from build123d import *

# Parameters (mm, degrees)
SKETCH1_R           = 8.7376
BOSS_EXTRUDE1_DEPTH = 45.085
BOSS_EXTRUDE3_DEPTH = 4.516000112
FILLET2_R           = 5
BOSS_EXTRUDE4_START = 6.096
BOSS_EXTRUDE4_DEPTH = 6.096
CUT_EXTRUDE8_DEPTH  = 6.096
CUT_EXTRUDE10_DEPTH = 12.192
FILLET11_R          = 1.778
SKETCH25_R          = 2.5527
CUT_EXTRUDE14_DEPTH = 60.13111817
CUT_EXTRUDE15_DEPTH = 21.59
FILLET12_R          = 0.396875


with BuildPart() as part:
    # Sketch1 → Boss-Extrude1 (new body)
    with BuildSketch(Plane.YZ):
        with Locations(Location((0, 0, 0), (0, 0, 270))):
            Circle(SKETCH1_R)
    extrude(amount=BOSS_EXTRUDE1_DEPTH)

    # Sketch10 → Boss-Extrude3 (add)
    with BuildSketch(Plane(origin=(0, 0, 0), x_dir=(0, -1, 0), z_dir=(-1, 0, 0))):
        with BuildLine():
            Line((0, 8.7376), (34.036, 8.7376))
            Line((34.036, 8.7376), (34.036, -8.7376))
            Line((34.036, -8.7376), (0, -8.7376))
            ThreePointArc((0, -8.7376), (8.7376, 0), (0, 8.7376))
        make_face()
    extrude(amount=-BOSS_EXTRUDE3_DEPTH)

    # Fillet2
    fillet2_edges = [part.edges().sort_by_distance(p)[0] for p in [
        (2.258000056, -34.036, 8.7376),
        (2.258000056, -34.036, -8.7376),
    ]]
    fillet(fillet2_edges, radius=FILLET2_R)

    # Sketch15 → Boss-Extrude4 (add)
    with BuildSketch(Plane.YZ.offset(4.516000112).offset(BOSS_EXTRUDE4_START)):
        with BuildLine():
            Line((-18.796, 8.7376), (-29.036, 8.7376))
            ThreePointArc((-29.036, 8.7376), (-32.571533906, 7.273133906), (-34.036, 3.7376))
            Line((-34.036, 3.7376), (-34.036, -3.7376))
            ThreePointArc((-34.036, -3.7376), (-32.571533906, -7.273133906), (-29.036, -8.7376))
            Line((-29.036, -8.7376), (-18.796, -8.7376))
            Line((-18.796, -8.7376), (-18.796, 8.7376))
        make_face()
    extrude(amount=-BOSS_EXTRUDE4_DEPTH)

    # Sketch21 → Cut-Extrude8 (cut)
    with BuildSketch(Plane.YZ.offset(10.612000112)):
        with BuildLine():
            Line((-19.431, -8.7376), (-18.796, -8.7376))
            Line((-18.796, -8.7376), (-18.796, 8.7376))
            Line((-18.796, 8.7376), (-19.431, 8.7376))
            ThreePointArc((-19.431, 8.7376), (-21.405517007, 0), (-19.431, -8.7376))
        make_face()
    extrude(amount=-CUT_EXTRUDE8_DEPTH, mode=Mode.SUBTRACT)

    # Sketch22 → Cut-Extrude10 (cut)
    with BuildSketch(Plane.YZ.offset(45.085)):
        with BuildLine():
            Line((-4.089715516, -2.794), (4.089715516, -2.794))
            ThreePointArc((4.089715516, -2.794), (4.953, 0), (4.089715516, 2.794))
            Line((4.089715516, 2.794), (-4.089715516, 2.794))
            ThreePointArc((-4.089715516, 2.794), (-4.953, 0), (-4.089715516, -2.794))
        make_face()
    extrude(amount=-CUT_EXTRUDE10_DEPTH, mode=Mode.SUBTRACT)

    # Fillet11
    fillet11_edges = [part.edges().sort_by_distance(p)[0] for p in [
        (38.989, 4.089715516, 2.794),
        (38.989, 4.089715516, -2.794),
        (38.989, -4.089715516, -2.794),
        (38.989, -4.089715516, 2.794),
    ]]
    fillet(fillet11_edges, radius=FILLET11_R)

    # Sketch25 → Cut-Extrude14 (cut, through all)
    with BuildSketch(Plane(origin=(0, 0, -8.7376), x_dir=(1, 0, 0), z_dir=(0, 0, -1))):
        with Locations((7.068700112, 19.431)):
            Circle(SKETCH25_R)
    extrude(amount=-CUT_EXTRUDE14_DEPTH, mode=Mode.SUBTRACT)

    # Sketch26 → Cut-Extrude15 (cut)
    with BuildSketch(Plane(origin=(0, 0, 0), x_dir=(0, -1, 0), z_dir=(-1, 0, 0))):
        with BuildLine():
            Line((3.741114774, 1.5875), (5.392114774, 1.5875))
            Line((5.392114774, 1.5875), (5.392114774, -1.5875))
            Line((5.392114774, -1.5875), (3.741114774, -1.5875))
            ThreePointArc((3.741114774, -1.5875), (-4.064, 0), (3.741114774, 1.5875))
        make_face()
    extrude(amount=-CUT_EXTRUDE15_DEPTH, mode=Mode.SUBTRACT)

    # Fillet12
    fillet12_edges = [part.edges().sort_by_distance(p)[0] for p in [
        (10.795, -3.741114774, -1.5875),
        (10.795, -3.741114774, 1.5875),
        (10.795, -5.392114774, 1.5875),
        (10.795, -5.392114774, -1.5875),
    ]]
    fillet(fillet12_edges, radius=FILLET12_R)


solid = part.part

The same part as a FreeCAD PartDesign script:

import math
import FreeCAD as App
import Part
import Sketcher
Q = App.Units.Quantity


def edges_at(feature, points):
    """Names of the edges that pass closest to the given points."""
    edges = feature.Shape.Edges
    near = lambda p: min(range(len(edges)), key=lambda i: edges[i].distToShape(Part.Vertex(*p))[0])
    return sorted({f"Edge{near(p) + 1}" for p in points})

doc = App.newDocument("Part")
body = doc.addObject("PartDesign::Body", "Body")

# Sketch on YZ plane
sketch1 = doc.addObject("Sketcher::SketchObject", "Sketch")
body.addObject(sketch1)
sketch1.AttachmentSupport = (doc.YZ_Plane, [""])
sketch1.MapMode = "FlatFace"
sketch1.addGeometry(Part.Circle(App.Vector(0, 0, 0), App.Vector(0, 0, 1), 9), False)
sketch1.addConstraint(Sketcher.Constraint("Coincident", 0, 3, -1, 1))
sketch1.addConstraint(Sketcher.Constraint("Diameter", 0, Q("0.688 in")))
pad1 = doc.addObject("PartDesign::Pad", "Pad")
body.addObject(pad1)
pad1.Profile = sketch1
pad1.Length = Q("1.775 in")

# Sketch on YZ plane
sketch2 = doc.addObject("Sketcher::SketchObject", "Sketch001")
body.addObject(sketch2)
sketch2.AttachmentSupport = (doc.YZ_Plane, [""])
sketch2.MapMode = "FlatFace"
sketch2.addGeometry(Part.LineSegment(App.Vector(-34, 9, 0), App.Vector(0, 9, 0)), False)
sketch2.addGeometry(Part.ArcOfCircle(Part.Circle(App.Vector(0, 0, 0), App.Vector(0, 0, 1), 9), math.radians(90), math.radians(270)), False)
sketch2.addGeometry(Part.LineSegment(App.Vector(0, -9, 0), App.Vector(-34, -9, 0)), False)
sketch2.addGeometry(Part.LineSegment(App.Vector(-34, -9, 0), App.Vector(-34, 9, 0)), False)
sketch2.addConstraint(Sketcher.Constraint("Tangent", 0, 2, 1, 1))
sketch2.addConstraint(Sketcher.Constraint("Tangent", 1, 2, 2, 1))
sketch2.addConstraint(Sketcher.Constraint("Coincident", 2, 2, 3, 1))
sketch2.addConstraint(Sketcher.Constraint("Coincident", 3, 2, 0, 1))
sketch2.addConstraint(Sketcher.Constraint("Horizontal", 0))
sketch2.addConstraint(Sketcher.Constraint("Horizontal", 2))
sketch2.addConstraint(Sketcher.Constraint("Vertical", 3))
sketch2.addConstraint(Sketcher.Constraint("Coincident", 1, 3, -1, 1))
sketch2.addConstraint(Sketcher.Constraint("Radius", 1, Q("0.344 in")))
sketch2.addConstraint(Sketcher.Constraint("DistanceX", 0, 1, 0, 2, Q("1.34 in")))
pad2 = doc.addObject("PartDesign::Pad", "Pad001")
body.addObject(pad2)
pad2.Profile = sketch2
pad2.Length = 4.516
doc.recompute()

fillet = doc.addObject("PartDesign::Fillet", "Fillet")
body.addObject(fillet)
fillet.Base = (pad2, edges_at(pad2, [(2.258, -34.036, 8.738), (2.258, -34.036, -8.738)]))
fillet.Radius = 5

# Sketch on YZ plane
sketch3 = doc.addObject("Sketcher::SketchObject", "Sketch002")
body.addObject(sketch3)
sketch3.AttachmentSupport = (doc.YZ_Plane, [""])
sketch3.MapMode = "FlatFace"
sketch3.AttachmentOffset = App.Placement(App.Vector(0, 0, 10.612), App.Rotation())
sketch3.addGeometry(Part.LineSegment(App.Vector(-19, 9, 0), App.Vector(-29, 9, 0)), False)
sketch3.addGeometry(Part.ArcOfCircle(Part.Circle(App.Vector(-29, 4, 0), App.Vector(0, 0, 1), 5), math.radians(90), math.radians(180)), False)
sketch3.addGeometry(Part.LineSegment(App.Vector(-34, 4, 0), App.Vector(-34, -4, 0)), False)
sketch3.addGeometry(Part.ArcOfCircle(Part.Circle(App.Vector(-29, -4, 0), App.Vector(0, 0, 1), 5), math.radians(180), math.radians(270)), False)
sketch3.addGeometry(Part.LineSegment(App.Vector(-29, -9, 0), App.Vector(-19, -9, 0)), False)
sketch3.addGeometry(Part.LineSegment(App.Vector(-19, -9, 0), App.Vector(-19, 9, 0)), False)
sketch3.addConstraint(Sketcher.Constraint("Tangent", 0, 2, 1, 1))
sketch3.addConstraint(Sketcher.Constraint("Tangent", 1, 2, 2, 1))
sketch3.addConstraint(Sketcher.Constraint("Tangent", 2, 2, 3, 1))
sketch3.addConstraint(Sketcher.Constraint("Tangent", 3, 2, 4, 1))
sketch3.addConstraint(Sketcher.Constraint("Coincident", 4, 2, 5, 1))
sketch3.addConstraint(Sketcher.Constraint("Coincident", 5, 2, 0, 1))
sketch3.addConstraint(Sketcher.Constraint("Horizontal", 0))
sketch3.addConstraint(Sketcher.Constraint("Vertical", 2))
sketch3.addConstraint(Sketcher.Constraint("Horizontal", 4))
sketch3.addConstraint(Sketcher.Constraint("Vertical", 5))
sketch3.addConstraint(Sketcher.Constraint("Equal", 1, 3))
sketch3.addConstraint(Sketcher.Constraint("DistanceX", 2, 2, 4, 2, Q("0.6 in")))
sketch3.addConstraint(Sketcher.Constraint("DistanceY", 5, 1, 5, 2, Q("0.688 in")))
sketch3.addConstraint(Sketcher.Constraint("DistanceX", 1, 2, -1, 1, Q("1.34 in")))
sketch3.addConstraint(Sketcher.Constraint("Radius", 1, Q("5 mm")))
sketch3.addConstraint(Sketcher.Constraint("DistanceY", -1, 1, 0, 2, Q("0.344 in")))
pad3 = doc.addObject("PartDesign::Pad", "Pad002")
body.addObject(pad3)
pad3.Profile = sketch3
pad3.Length = Q("0.24 in")
pad3.Reversed = True

# Sketch on YZ plane
sketch4 = doc.addObject("Sketcher::SketchObject", "Sketch003")
body.addObject(sketch4)
sketch4.AttachmentSupport = (doc.YZ_Plane, [""])
sketch4.MapMode = "FlatFace"
sketch4.AttachmentOffset = App.Placement(App.Vector(0, 0, 10.612), App.Rotation())
sketch4.addGeometry(Part.LineSegment(App.Vector(-19.4, -8.7, 0), App.Vector(-18.8, -8.7, 0)), False)
sketch4.addGeometry(Part.LineSegment(App.Vector(-18.8, -8.7, 0), App.Vector(-18.8, 8.7, 0)), False)
sketch4.addGeometry(Part.LineSegment(App.Vector(-18.8, 8.7, 0), App.Vector(-19.4, 8.7, 0)), False)
sketch4.addGeometry(Part.ArcOfCircle(Part.Circle(App.Vector(-1.1, 0, 0), App.Vector(0, 0, 1), 20.3), math.radians(155), math.radians(205)), False)
sketch4.addConstraint(Sketcher.Constraint("Coincident", 0, 2, 1, 1))
sketch4.addConstraint(Sketcher.Constraint("Coincident", 1, 2, 2, 1))
sketch4.addConstraint(Sketcher.Constraint("Coincident", 2, 2, 3, 1))
sketch4.addConstraint(Sketcher.Constraint("Coincident", 3, 2, 0, 1))
sketch4.addConstraint(Sketcher.Constraint("Horizontal", 0))
sketch4.addConstraint(Sketcher.Constraint("Vertical", 1))
sketch4.addConstraint(Sketcher.Constraint("Horizontal", 2))
sketch4.addConstraint(Sketcher.Constraint("Symmetric", 2, 2, 3, 2, -1))
sketch4.addConstraint(Sketcher.Constraint("Radius", 3, Q("0.8 in")))
sketch4.addConstraint(Sketcher.Constraint("DistanceX", 0, 1, 0, 2, Q("0.025 in")))
sketch4.addConstraint(Sketcher.Constraint("DistanceY", 1, 1, 1, 2, Q("0.688 in")))
sketch4.addConstraint(Sketcher.Constraint("DistanceX", 0, 2, -1, 1, Q("0.74 in")))
pocket1 = doc.addObject("PartDesign::Pocket", "Pocket")
body.addObject(pocket1)
pocket1.Profile = sketch4
pocket1.Length = Q("0.24 in")

# Sketch on YZ plane
sketch5 = doc.addObject("Sketcher::SketchObject", "Sketch004")
body.addObject(sketch5)
sketch5.AttachmentSupport = (doc.YZ_Plane, [""])
sketch5.MapMode = "FlatFace"
sketch5.AttachmentOffset = App.Placement(App.Vector(0, 0, 1.775 * 25.4), App.Rotation())
sketch5.addGeometry(Part.LineSegment(App.Vector(-4.1, -2.8, 0), App.Vector(4.1, -2.8, 0)), False)
sketch5.addGeometry(Part.ArcOfCircle(Part.Circle(App.Vector(0, 0, 0), App.Vector(0, 0, 1), 5), math.radians(-34), math.radians(34)), False)
sketch5.addGeometry(Part.LineSegment(App.Vector(4.1, 2.8, 0), App.Vector(-4.1, 2.8, 0)), False)
sketch5.addGeometry(Part.ArcOfCircle(Part.Circle(App.Vector(0, 0, 0), App.Vector(0, 0, 1), 5), math.radians(146), math.radians(214)), False)
sketch5.addConstraint(Sketcher.Constraint("Coincident", 0, 2, 1, 1))
sketch5.addConstraint(Sketcher.Constraint("Coincident", 1, 2, 2, 1))
sketch5.addConstraint(Sketcher.Constraint("Coincident", 2, 2, 3, 1))
sketch5.addConstraint(Sketcher.Constraint("Coincident", 3, 2, 0, 1))
sketch5.addConstraint(Sketcher.Constraint("Horizontal", 0))
sketch5.addConstraint(Sketcher.Constraint("Horizontal", 2))
sketch5.addConstraint(Sketcher.Constraint("Coincident", 1, 3, -1, 1))
sketch5.addConstraint(Sketcher.Constraint("Coincident", 3, 3, -1, 1))
sketch5.addConstraint(Sketcher.Constraint("Equal", 1, 3))
sketch5.addConstraint(Sketcher.Constraint("Vertical", 0, 2, 1, 2))
sketch5.addConstraint(Sketcher.Constraint("Radius", 1, Q("0.195 in")))
sketch5.addConstraint(Sketcher.Constraint("DistanceY", 0, 2, -1, 1, Q("0.11 in")))
pocket2 = doc.addObject("PartDesign::Pocket", "Pocket001")
body.addObject(pocket2)
pocket2.Profile = sketch5
pocket2.Length = Q("0.48 in")
doc.recompute()

fillet2 = doc.addObject("PartDesign::Fillet", "Fillet001")
body.addObject(fillet2)
fillet2.Base = (pocket2, edges_at(pocket2, [
    (38.989, 4.09, 2.794),
    (38.989, 4.09, -2.794),
    (38.989, -4.09, -2.794),
    (38.989, -4.09, 2.794),
]))
fillet2.Radius = Q("0.07 in")

# Sketch on XY plane
sketch6 = doc.addObject("Sketcher::SketchObject", "Sketch005")
body.addObject(sketch6)
sketch6.AttachmentSupport = (doc.XY_Plane, [""])
sketch6.MapMode = "FlatFace"
sketch6.AttachmentOffset = App.Placement(App.Vector(0, 0, -0.344 * 25.4), App.Rotation())
sketch6.addGeometry(Part.Circle(App.Vector(7.1, -19.4, 0), App.Vector(0, 0, 1), 2.6), False)
sketch6.addConstraint(Sketcher.Constraint("Diameter", 0, Q("0.201 in")))
sketch6.addConstraint(Sketcher.Constraint("DistanceY", 0, 3, -1, 1, Q("0.765 in")))
sketch6.addConstraint(Sketcher.Constraint("DistanceX", -1, 1, 0, 3, Q("7.0687 mm")))
pocket3 = doc.addObject("PartDesign::Pocket", "Pocket002")
body.addObject(pocket3)
pocket3.Profile = sketch6
pocket3.Type = "ThroughAll"
pocket3.Reversed = True

# Sketch on YZ plane
sketch7 = doc.addObject("Sketcher::SketchObject", "Sketch006")
body.addObject(sketch7)
sketch7.AttachmentSupport = (doc.YZ_Plane, [""])
sketch7.MapMode = "FlatFace"
sketch7.addGeometry(Part.LineSegment(App.Vector(-5.4, 1.6, 0), App.Vector(-3.7, 1.6, 0)), False)
sketch7.addGeometry(Part.ArcOfCircle(Part.Circle(App.Vector(0, 0, 0), App.Vector(0, 0, 1), 4.1), math.radians(-157), math.radians(157)), False)
sketch7.addGeometry(Part.LineSegment(App.Vector(-3.7, -1.6, 0), App.Vector(-5.4, -1.6, 0)), False)
sketch7.addGeometry(Part.LineSegment(App.Vector(-5.4, -1.6, 0), App.Vector(-5.4, 1.6, 0)), False)
sketch7.addConstraint(Sketcher.Constraint("Coincident", 0, 2, 1, 2))
sketch7.addConstraint(Sketcher.Constraint("Coincident", 1, 1, 2, 1))
sketch7.addConstraint(Sketcher.Constraint("Coincident", 2, 2, 3, 1))
sketch7.addConstraint(Sketcher.Constraint("Coincident", 3, 2, 0, 1))
sketch7.addConstraint(Sketcher.Constraint("Horizontal", 0))
sketch7.addConstraint(Sketcher.Constraint("Horizontal", 2))
sketch7.addConstraint(Sketcher.Constraint("Vertical", 3))
sketch7.addConstraint(Sketcher.Constraint("Coincident", 1, 3, -1, 1))
sketch7.addConstraint(Sketcher.Constraint("Vertical", 0, 2, 1, 1))
sketch7.addConstraint(Sketcher.Constraint("Radius", 1, Q("0.16 in")))
sketch7.addConstraint(Sketcher.Constraint("DistanceX", 0, 1, 0, 2, Q("0.065 in")))
sketch7.addConstraint(Sketcher.Constraint("DistanceY", 3, 1, 3, 2, Q("0.125 in")))
pocket4 = doc.addObject("PartDesign::Pocket", "Pocket003")
body.addObject(pocket4)
pocket4.Profile = sketch7
pocket4.Length = Q("0.85 in")
pocket4.Reversed = True
doc.recompute()

fillet3 = doc.addObject("PartDesign::Fillet", "Fillet002")
body.addObject(fillet3)
fillet3.Base = (pocket4, edges_at(pocket4, [
    (10.795, -3.741, -1.587),
    (10.795, -3.741, 1.587),
    (10.795, -5.392, 1.587),
    (10.795, -5.392, -1.587),
]))
fillet3.Radius = Q("0.015625 in")

doc.recompute()
